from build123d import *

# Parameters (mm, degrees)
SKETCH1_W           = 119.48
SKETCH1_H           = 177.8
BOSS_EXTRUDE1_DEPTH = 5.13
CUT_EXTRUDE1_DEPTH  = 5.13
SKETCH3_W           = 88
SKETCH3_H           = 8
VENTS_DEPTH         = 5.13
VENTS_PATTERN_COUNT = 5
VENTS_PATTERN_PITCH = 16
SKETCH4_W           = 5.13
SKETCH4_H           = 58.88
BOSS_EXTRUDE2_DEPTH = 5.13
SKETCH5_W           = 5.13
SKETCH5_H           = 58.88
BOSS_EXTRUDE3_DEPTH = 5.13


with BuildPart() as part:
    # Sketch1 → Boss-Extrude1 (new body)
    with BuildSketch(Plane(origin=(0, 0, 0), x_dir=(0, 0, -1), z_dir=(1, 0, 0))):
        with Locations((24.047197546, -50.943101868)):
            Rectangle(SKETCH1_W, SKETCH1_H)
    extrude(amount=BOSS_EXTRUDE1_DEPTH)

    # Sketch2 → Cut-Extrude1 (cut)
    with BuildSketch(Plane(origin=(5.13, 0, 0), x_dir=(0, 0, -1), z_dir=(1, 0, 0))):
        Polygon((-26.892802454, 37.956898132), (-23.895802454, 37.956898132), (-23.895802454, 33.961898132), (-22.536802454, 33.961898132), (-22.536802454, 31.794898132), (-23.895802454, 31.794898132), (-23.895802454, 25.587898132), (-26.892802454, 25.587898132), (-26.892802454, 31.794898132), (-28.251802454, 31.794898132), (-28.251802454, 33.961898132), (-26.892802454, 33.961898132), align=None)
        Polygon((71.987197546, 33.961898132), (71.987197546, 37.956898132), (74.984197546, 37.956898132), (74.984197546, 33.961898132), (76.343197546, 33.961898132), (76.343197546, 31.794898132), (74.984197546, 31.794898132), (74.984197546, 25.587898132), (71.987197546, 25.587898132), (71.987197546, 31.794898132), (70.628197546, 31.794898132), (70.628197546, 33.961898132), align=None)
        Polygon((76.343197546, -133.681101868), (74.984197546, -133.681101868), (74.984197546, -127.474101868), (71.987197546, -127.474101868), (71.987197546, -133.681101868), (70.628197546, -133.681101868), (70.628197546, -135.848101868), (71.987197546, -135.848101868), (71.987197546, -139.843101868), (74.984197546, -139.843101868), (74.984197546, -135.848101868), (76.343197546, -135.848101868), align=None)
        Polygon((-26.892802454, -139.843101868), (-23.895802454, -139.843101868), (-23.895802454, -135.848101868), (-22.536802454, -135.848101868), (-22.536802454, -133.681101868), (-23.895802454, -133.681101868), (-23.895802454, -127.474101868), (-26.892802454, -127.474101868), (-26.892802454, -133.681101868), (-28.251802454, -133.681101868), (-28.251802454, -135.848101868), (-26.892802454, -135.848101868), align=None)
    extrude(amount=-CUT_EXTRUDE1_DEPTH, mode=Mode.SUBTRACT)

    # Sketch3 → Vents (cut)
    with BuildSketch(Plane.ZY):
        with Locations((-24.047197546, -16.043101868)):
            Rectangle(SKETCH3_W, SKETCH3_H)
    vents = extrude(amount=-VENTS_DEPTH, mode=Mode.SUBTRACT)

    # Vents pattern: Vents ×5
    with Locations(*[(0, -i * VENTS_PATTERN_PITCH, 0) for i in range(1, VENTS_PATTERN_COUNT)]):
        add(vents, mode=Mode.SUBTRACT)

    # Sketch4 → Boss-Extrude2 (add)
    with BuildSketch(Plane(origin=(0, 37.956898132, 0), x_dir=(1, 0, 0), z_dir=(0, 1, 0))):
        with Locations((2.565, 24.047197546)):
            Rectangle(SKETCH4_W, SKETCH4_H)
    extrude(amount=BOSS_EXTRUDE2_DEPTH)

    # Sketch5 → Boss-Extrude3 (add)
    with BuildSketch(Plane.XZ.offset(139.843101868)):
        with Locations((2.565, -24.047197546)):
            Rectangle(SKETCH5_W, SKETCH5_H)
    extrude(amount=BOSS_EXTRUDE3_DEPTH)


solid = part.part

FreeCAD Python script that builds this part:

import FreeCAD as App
import Part
import Sketcher
from FreeCAD import Vector
Q = App.Units.Quantity


def add_polygon(sketch, points):
    """Adds a closed chain of lines whose ends are joined by coincident constraints."""
    first, n = sketch.GeometryCount, len(points)
    for a, b in zip(points, points[1:] + points[:1]):
        sketch.addGeometry(Part.LineSegment(App.Vector(*a, 0), App.Vector(*b, 0)), False)
    for i in range(n):
        sketch.addConstraint(Sketcher.Constraint("Coincident", first + i, 2, first + (i + 1) % n, 1))

doc = App.newDocument("Part")
params = doc.addObject("Spreadsheet::Sheet", "Params")
for row, (alias, value) in enumerate([
    ("sketch1_width", "177.8 mm"),
    ("sketch1_height", "119.48 mm"),
    ("pad1_length", "5.13 mm"),
    ("pocket1_length", "5.13 mm"),
    ("sketch3_width", "8 mm"),
    ("sketch3_height", "88 mm"),
    ("pocket2_length", "5.13 mm"),
    ("linearpattern_pitch", "16 mm"),
    ("sketch4_width", "5.13 mm"),
    ("sketch4_height", "58.88 mm"),
    ("pad2_length", "5.13 mm"),
    ("sketch5_width", "5.13 mm"),
    ("sketch5_height", "58.88 mm"),
    ("pad3_length", "5.13 mm"),
], start=1):
    params.set(f"A{row}", alias)
    params.set(f"B{row}", "=" + value)
    params.setAlias(f"B{row}", alias)

body = doc.addObject("PartDesign::Body", "Body")

sketch1 = body.newObject("Sketcher::SketchObject", "Sketch")
sketch1.AttachmentSupport = (doc.getObject("YZ_Plane"), [""])
sketch1.MapMode = "FlatFace"
add_polygon(sketch1, [(37.956898, 35.692802), (-139.843102, 35.692802), (-139.843102, -83.787198), (37.956898, -83.787198)])
sketch1.addConstraint(Sketcher.Constraint("Horizontal", 0))
sketch1.addConstraint(Sketcher.Constraint("Vertical", 1))
sketch1.addConstraint(Sketcher.Constraint("Horizontal", 2))
sketch1.addConstraint(Sketcher.Constraint("Vertical", 3))
sketch1.addConstraint(Sketcher.Constraint("DistanceX", 0, 2, 0, 1, Q("177.8 mm")))
sketch1.addConstraint(Sketcher.Constraint("DistanceY", 1, 2, 1, 1, Q("119.48 mm")))
sketch1.addConstraint(Sketcher.Constraint("DistanceX", 0, 2, -1, 1, Q("139.843102 mm")))
sketch1.addConstraint(Sketcher.Constraint("DistanceY", -1, 1, 0, 2, Q("35.692802 mm")))
sketch1.setExpression("Constraints[8]", "Params.sketch1_width")
sketch1.setExpression("Constraints[9]", "Params.sketch1_height")
pad1 = body.newObject("PartDesign::Pad", "Pad")
pad1.Profile = sketch1
pad1.setExpression("Length", "Params.pad1_length")

sketch2 = body.newObject("Sketcher::SketchObject", "Sketch001")
sketch2.AttachmentSupport = (doc.getObject("YZ_Plane"), [""])
sketch2.MapMode = "FlatFace"
sketch2.AttachmentOffset = App.Placement(Vector(0, 0, 5.13), App.Rotation())
add_polygon(sketch2, [(37.956898, 23.895802), (37.956898, 26.892802), (33.961898, 26.892802), (33.961898, 28.251802), (31.794898, 28.251802), (31.794898, 26.892802), (25.587898, 26.892802), (25.587898, 23.895802), (31.794898, 23.895802), (31.794898, 22.536802), (33.961898, 22.536802), (33.961898, 23.895802)])
add_polygon(sketch2, [(37.956898, -71.987198), (33.961898, -71.987198), (33.961898, -70.628198), (31.794898, -70.628198), (31.794898, -71.987198), (25.587898, -71.987198), (25.587898, -74.984198), (31.794898, -74.984198), (31.794898, -76.343198), (33.961898, -76.343198), (33.961898, -74.984198), (37.956898, -74.984198)])
add_polygon(sketch2, [(-133.681102, -76.343198), (-133.681102, -74.984198), (-127.474102, -74.984198), (-127.474102, -71.987198), (-133.681102, -71.987198), (-133.681102, -70.628198), (-135.848102, -70.628198), (-135.848102, -71.987198), (-139.843102, -71.987198), (-139.843102, -74.984198), (-135.848102, -74.984198), (-135.848102, -76.343198)])
add_polygon(sketch2, [(-139.843102, 26.892802), (-139.843102, 23.895802), (-135.848102, 23.895802), (-135.848102, 22.536802), (-133.681102, 22.536802), (-133.681102, 23.895802), (-127.474102, 23.895802), (-127.474102, 26.892802), (-133.681102, 26.892802), (-133.681102, 28.251802), (-135.848102, 28.251802), (-135.848102, 26.892802)])
sketch2.addConstraint(Sketcher.Constraint("Vertical", 0))
sketch2.addConstraint(Sketcher.Constraint("Horizontal", 1))
sketch2.addConstraint(Sketcher.Constraint("Vertical", 2))
sketch2.addConstraint(Sketcher.Constraint("Horizontal", 3))
sketch2.addConstraint(Sketcher.Constraint("Vertical", 4))
sketch2.addConstraint(Sketcher.Constraint("Horizontal", 5))
sketch2.addConstraint(Sketcher.Constraint("Vertical", 6))
sketch2.addConstraint(Sketcher.Constraint("Horizontal", 7))
sketch2.addConstraint(Sketcher.Constraint("Vertical", 8))
sketch2.addConstraint(Sketcher.Constraint("Horizontal", 9))
sketch2.addConstraint(Sketcher.Constraint("Vertical", 10))
sketch2.addConstraint(Sketcher.Constraint("Horizontal", 11))
sketch2.addConstraint(Sketcher.Constraint("Horizontal", 12))
sketch2.addConstraint(Sketcher.Constraint("Vertical", 13))
sketch2.addConstraint(Sketcher.Constraint("Horizontal", 14))
sketch2.addConstraint(Sketcher.Constraint("Vertical", 15))
sketch2.addConstraint(Sketcher.Constraint("Horizontal", 16))
sketch2.addConstraint(Sketcher.Constraint("Vertical", 17))
sketch2.addConstraint(Sketcher.Constraint("Horizontal", 18))
sketch2.addConstraint(Sketcher.Constraint("Vertical", 19))
sketch2.addConstraint(Sketcher.Constraint("Horizontal", 20))
sketch2.addConstraint(Sketcher.Constraint("Vertical", 21))
sketch2.addConstraint(Sketcher.Constraint("Horizontal", 22))
sketch2.addConstraint(Sketcher.Constraint("Vertical", 23))
sketch2.addConstraint(Sketcher.Constraint("Vertical", 24))
sketch2.addConstraint(Sketcher.Constraint("Horizontal", 25))
sketch2.addConstraint(Sketcher.Constraint("Vertical", 26))
sketch2.addConstraint(Sketcher.Constraint("Horizontal", 27))
sketch2.addConstraint(Sketcher.Constraint("Vertical", 28))
sketch2.addConstraint(Sketcher.Constraint("Horizontal", 29))
sketch2.addConstraint(Sketcher.Constraint("Vertical", 30))
sketch2.addConstraint(Sketcher.Constraint("Horizontal", 31))
sketch2.addConstraint(Sketcher.Constraint("Vertical", 32))
sketch2.addConstraint(Sketcher.Constraint("Horizontal", 33))
sketch2.addConstraint(Sketcher.Constraint("Vertical", 34))
sketch2.addConstraint(Sketcher.Constraint("Horizontal", 35))
sketch2.addConstraint(Sketcher.Constraint("Vertical", 36))
sketch2.addConstraint(Sketcher.Constraint("Horizontal", 37))
sketch2.addConstraint(Sketcher.Constraint("Vertical", 38))
sketch2.addConstraint(Sketcher.Constraint("Horizontal", 39))
sketch2.addConstraint(Sketcher.Constraint("Vertical", 40))
sketch2.addConstraint(Sketcher.Constraint("Horizontal", 41))
sketch2.addConstraint(Sketcher.Constraint("Vertical", 42))
sketch2.addConstraint(Sketcher.Constraint("Horizontal", 43))
sketch2.addConstraint(Sketcher.Constraint("Vertical", 44))
sketch2.addConstraint(Sketcher.Constraint("Horizontal", 45))
sketch2.addConstraint(Sketcher.Constraint("Vertical", 46))
sketch2.addConstraint(Sketcher.Constraint("Horizontal", 47))
sketch2.addConstraint(Sketcher.Constraint("Horizontal", 1, 2, 4, 2))
sketch2.addConstraint(Sketcher.Constraint("Horizontal", 7, 2, 10, 2))
sketch2.addConstraint(Sketcher.Constraint("Horizontal", 12, 2, 15, 2))
sketch2.addConstraint(Sketcher.Constraint("Horizontal", 18, 2, 21, 2))
sketch2.addConstraint(Sketcher.Constraint("Horizontal", 22, 2, 24, 2))
sketch2.addConstraint(Sketcher.Constraint("Horizontal", 23, 2, 26, 2))
sketch2.addConstraint(Sketcher.Constraint("Horizontal", 14, 2, 28, 2))
sketch2.addConstraint(Sketcher.Constraint("Horizontal", 27, 2, 30, 2))
sketch2.addConstraint(Sketcher.Constraint("Horizontal", 25, 2, 32, 2))
sketch2.addConstraint(Sketcher.Constraint("Horizontal", 20, 2, 34, 2))
sketch2.addConstraint(Sketcher.Constraint("Horizontal", 11, 2, 36, 2))
sketch2.addConstraint(Sketcher.Constraint("Horizontal", 9, 2, 38, 2))
sketch2.addConstraint(Sketcher.Constraint("Horizontal", 37, 2, 40, 2))
sketch2.addConstraint(Sketcher.Constraint("Horizontal", 5, 2, 42, 2))
sketch2.addConstraint(Sketcher.Constraint("Horizontal", 3, 2, 44, 2))
sketch2.addConstraint(Sketcher.Constraint("Horizontal", 43, 2, 46, 2))
sketch2.addConstraint(Sketcher.Constraint("Vertical", 4, 2, 7, 2))
sketch2.addConstraint(Sketcher.Constraint("Vertical", 2, 2, 9, 2))
sketch2.addConstraint(Sketcher.Constraint("Vertical", 10, 2, 12, 2))
sketch2.addConstraint(Sketcher.Constraint("Vertical", 8, 2, 14, 2))
sketch2.addConstraint(Sketcher.Constraint("Vertical", 6, 2, 16, 2))
sketch2.addConstraint(Sketcher.Constraint("Vertical", 15, 2, 18, 2))
sketch2.addConstraint(Sketcher.Constraint("Vertical", 13, 2, 20, 2))
sketch2.addConstraint(Sketcher.Constraint("Vertical", 11, 2, 22, 2))
sketch2.addConstraint(Sketcher.Constraint("Vertical", 24, 2, 27, 2))
sketch2.addConstraint(Sketcher.Constraint("Vertical", 30, 2, 33, 2))
sketch2.addConstraint(Sketcher.Constraint("Vertical", 32, 2, 36, 2))
sketch2.addConstraint(Sketcher.Constraint("Vertical", 34, 2, 37, 2))
sketch2.addConstraint(Sketcher.Constraint("Vertical", 35, 2, 39, 2))
sketch2.addConstraint(Sketcher.Constraint("Vertical", 26, 2, 41, 2))
sketch2.addConstraint(Sketcher.Constraint("Vertical", 40, 2, 43, 2))
sketch2.addConstraint(Sketcher.Constraint("Vertical", 38, 2, 45, 2))
sketch2.addConstraint(Sketcher.Constraint("Equal", 18, 25))
sketch2.addConstraint(Sketcher.Constraint("Equal", 20, 29))
sketch2.addConstraint(Sketcher.Constraint("Equal", 22, 31))
sketch2.addConstraint(Sketcher.Constraint("Equal", 4, 8))
sketch2.addConstraint(Sketcher.Constraint("Equal", 10, 13))
sketch2.addConstraint(Sketcher.Constraint("Equal", 6, 17))
sketch2.addConstraint(Sketcher.Constraint("Equal", 15, 19))
sketch2.addConstraint(Sketcher.Constraint("DistanceX", 1, 2, 1, 1, Q("3.995 mm")))
sketch2.addConstraint(Sketcher.Constraint("DistanceX", 3, 2, 3, 1, Q("2.167 mm")))
sketch2.addConstraint(Sketcher.Constraint("DistanceX", 5, 2, 5, 1, Q("6.207 mm")))
sketch2.addConstraint(Sketcher.Constraint("DistanceY", 0, 1, 0, 2, Q("2.997 mm")))
sketch2.addConstraint(Sketcher.Constraint("DistanceY", 2, 1, 2, 2, Q("1.359 mm")))
sketch2.addConstraint(Sketcher.Constraint("DistanceY", 12, 2, 9, 2, Q("94.524 mm")))
sketch2.addConstraint(Sketcher.Constraint("DistanceX", 24, 2, 17, 2, Q("159.269 mm")))
sketch2.addConstraint(Sketcher.Constraint("DistanceX", -1, 1, 0, 2, Q("37.956898 mm")))
sketch2.addConstraint(Sketcher.Constraint("DistanceY", -1, 1, 0, 2, Q("26.892802 mm")))
pocket1 = body.newObject("PartDesign::Pocket", "Pocket")
pocket1.Profile = sketch2
pocket1.setExpression("Length", "Params.pocket1_length")

sketch3 = body.newObject("Sketcher::SketchObject", "Sketch002")
sketch3.AttachmentSupport = (doc.getObject("YZ_Plane"), [""])
sketch3.MapMode = "FlatFace"
add_polygon(sketch3, [(-12.043102, -68.047198), (-20.043102, -68.047198), (-20.043102, 19.952802), (-12.043102, 19.952802)])
sketch3.addConstraint(Sketcher.Constraint("Horizontal", 0))
sketch3.addConstraint(Sketcher.Constraint("Vertical", 1))
sketch3.addConstraint(Sketcher.Constraint("Horizontal", 2))
sketch3.addConstraint(Sketcher.Constraint("Vertical", 3))
sketch3.addConstraint(Sketcher.Constraint("DistanceX", 0, 2, 0, 1, Q("8 mm")))
sketch3.addConstraint(Sketcher.Constraint("DistanceY", 1, 1, 1, 2, Q("88 mm")))
sketch3.addConstraint(Sketcher.Constraint("DistanceX", 0, 2, -1, 1, Q("20.043102 mm")))
sketch3.addConstraint(Sketcher.Constraint("DistanceY", 0, 2, -1, 1, Q("68.047198 mm")))
sketch3.setExpression("Constraints[8]", "Params.sketch3_width")
sketch3.setExpression("Constraints[9]", "Params.sketch3_height")
pocket2 = body.newObject("PartDesign::Pocket", "Pocket001")
pocket2.Profile = sketch3
pocket2.setExpression("Length", "Params.pocket2_length")
pocket2.Reversed = True
doc.recompute()

linearpattern = body.newObject("PartDesign::LinearPattern", "LinearPattern")
linearpattern.Originals = [pocket2]
linearpattern.Direction = (doc.getObject("Y_Axis"), [""])
linearpattern.Mode = "offset"
linearpattern.setExpression("Offset", "Params.linearpattern_pitch")
linearpattern.Occurrences = 5
linearpattern.Reversed = True
body.Tip = linearpattern

sketch4 = body.newObject("Sketcher::SketchObject", "Sketch003")
sketch4.AttachmentSupport = (doc.getObject("XZ_Plane"), [""])
sketch4.MapMode = "FlatFace"
sketch4.AttachmentOffset = App.Placement(Vector(0, 0, -37.956898), App.Rotation())
add_polygon(sketch4, [(0, -53.487198), (0, 5.392802), (5.13, 5.392802), (5.13, -53.487198)])
sketch4.addConstraint(Sketcher.Constraint("Vertical", 0))
sketch4.addConstraint(Sketcher.Constraint("Horizontal", 1))
sketch4.addConstraint(Sketcher.Constraint("Vertical", 2))
sketch4.addConstraint(Sketcher.Constraint("Horizontal", 3))
sketch4.addConstraint(Sketcher.Constraint("PointOnObject", 0, 2, -2))
sketch4.addConstraint(Sketcher.Constraint("DistanceX", 1, 1, 1, 2, Q("5.13 mm")))
sketch4.addConstraint(Sketcher.Constraint("DistanceY", 0, 1, 0, 2, Q("58.88 mm")))
sketch4.addConstraint(Sketcher.Constraint("DistanceY", -1, 1, 0, 2, Q("5.392802 mm")))
sketch4.setExpression("Constraints[9]", "Params.sketch4_width")
sketch4.setExpression("Constraints[10]", "Params.sketch4_height")
pad2 = body.newObject("PartDesign::Pad", "Pad001")
pad2.Profile = sketch4
pad2.setExpression("Length", "Params.pad2_length")
pad2.Reversed = True

sketch5 = body.newObject("Sketcher::SketchObject", "Sketch004")
sketch5.AttachmentSupport = (doc.getObject("XZ_Plane"), [""])
sketch5.MapMode = "FlatFace"
sketch5.AttachmentOffset = App.Placement(Vector(0, 0, 139.843102), App.Rotation())
add_polygon(sketch5, [(0, 5.392802), (0, -53.487198), (5.13, -53.487198), (5.13, 5.392802)])
sketch5.addConstraint(Sketcher.Constraint("Vertical", 0))
sketch5.addConstraint(Sketcher.Constraint("Horizontal", 1))
sketch5.addConstraint(Sketcher.Constraint("Vertical", 2))
sketch5.addConstraint(Sketcher.Constraint("Horizontal", 3))
sketch5.addConstraint(Sketcher.Constraint("PointOnObject", 0, 2, -2))
sketch5.addConstraint(Sketcher.Constraint("DistanceX", 1, 1, 1, 2, Q("5.13 mm")))
sketch5.addConstraint(Sketcher.Constraint("DistanceY", 0, 2, 0, 1, Q("58.88 mm")))
sketch5.addConstraint(Sketcher.Constraint("DistanceY", 0, 2, -1, 1, Q("53.487198 mm")))
sketch5.setExpression("Constraints[9]", "Params.sketch5_width")
sketch5.setExpression("Constraints[10]", "Params.sketch5_height")
pad3 = body.newObject("PartDesign::Pad", "Pad002")
pad3.Profile = sketch5
pad3.setExpression("Length", "Params.pad3_length")

doc.recompute()
